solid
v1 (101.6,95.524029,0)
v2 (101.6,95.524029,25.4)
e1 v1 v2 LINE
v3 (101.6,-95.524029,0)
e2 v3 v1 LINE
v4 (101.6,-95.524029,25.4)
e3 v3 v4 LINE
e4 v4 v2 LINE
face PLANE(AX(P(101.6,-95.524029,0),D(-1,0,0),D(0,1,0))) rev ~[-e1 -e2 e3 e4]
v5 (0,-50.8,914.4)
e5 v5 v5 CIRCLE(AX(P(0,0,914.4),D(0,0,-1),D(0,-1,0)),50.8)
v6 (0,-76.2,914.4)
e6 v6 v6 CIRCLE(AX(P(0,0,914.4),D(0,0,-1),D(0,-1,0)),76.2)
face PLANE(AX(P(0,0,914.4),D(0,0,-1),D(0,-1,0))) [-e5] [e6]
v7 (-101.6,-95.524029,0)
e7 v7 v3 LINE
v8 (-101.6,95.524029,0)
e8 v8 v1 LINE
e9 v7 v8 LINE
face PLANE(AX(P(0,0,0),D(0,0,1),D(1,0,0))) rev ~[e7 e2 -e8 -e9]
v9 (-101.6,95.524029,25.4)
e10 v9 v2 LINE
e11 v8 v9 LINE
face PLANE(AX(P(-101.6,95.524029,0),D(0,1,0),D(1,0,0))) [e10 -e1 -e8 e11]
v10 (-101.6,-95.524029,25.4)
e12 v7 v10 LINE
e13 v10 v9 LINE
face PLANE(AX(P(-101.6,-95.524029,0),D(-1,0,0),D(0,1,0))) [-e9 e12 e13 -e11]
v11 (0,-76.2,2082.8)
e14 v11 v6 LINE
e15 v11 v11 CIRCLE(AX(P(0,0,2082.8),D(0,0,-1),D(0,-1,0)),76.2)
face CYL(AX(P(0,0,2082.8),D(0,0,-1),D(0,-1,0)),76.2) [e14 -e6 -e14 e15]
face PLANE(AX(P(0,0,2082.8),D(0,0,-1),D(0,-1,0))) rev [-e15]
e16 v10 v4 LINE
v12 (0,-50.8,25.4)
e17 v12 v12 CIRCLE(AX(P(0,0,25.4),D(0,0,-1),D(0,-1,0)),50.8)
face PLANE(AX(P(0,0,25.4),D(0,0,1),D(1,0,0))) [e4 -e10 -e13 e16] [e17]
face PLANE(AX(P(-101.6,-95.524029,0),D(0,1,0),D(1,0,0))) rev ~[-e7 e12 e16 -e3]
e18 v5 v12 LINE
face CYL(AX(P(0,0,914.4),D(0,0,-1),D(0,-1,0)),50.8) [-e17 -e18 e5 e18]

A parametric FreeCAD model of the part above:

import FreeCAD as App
import Part
import Sketcher

V = App.Vector
Q = App.Units.Quantity

doc = App.newDocument("Part")
params = doc.addObject("Spreadsheet::Sheet", "Params")
for row, (alias, value) in enumerate([
    ("sketch1_width", "2 in"),
    ("sketch1_width2", "3 in"),
    ("sketch1_height", "82 in"),
    ("sketch1_height2", "46 in"),
    ("revolution_angle", "360 deg"),
    ("sketch2_width", "8 in"),
    ("pad1_length", "1 in"),
], start=1):
    params.set(f"A{row}", alias)
    params.set(f"B{row}", "=" + value)
    params.setAlias(f"B{row}", alias)

body = doc.addObject("PartDesign::Body", "Body")

sketch1 = body.newObject("Sketcher::SketchObject", "Sketch")
sketch1.AttachmentSupport = (doc.getObject("YZ_Plane"), [""])
sketch1.MapMode = "FlatFace"
sketch1.addGeometry(Part.LineSegment(V(-50.8, 0, 0), V(0, 0, 0)), False)
sketch1.addGeometry(Part.LineSegment(V(0, 0, 0), V(0, 2082.8, 0)), False)
sketch1.addGeometry(Part.LineSegment(V(0, 2082.8, 0), V(-76.2, 2082.8, 0)), False)
sketch1.addGeometry(Part.LineSegment(V(-76.2, 2082.8, 0), V(-76.2, 914.4, 0)), False)
sketch1.addGeometry(Part.LineSegment(V(-76.2, 914.4, 0), V(-50.8, 914.4, 0)), False)
sketch1.addGeometry(Part.LineSegment(V(-50.8, 914.4, 0), V(-50.8, 0, 0)), False)
sketch1.addConstraint(Sketcher.Constraint("Coincident", 0, 2, 1, 1))
sketch1.addConstraint(Sketcher.Constraint("Coincident", 1, 2, 2, 1))
sketch1.addConstraint(Sketcher.Constraint("Coincident", 2, 2, 3, 1))
sketch1.addConstraint(Sketcher.Constraint("Coincident", 3, 2, 4, 1))
sketch1.addConstraint(Sketcher.Constraint("Coincident", 4, 2, 5, 1))
sketch1.addConstraint(Sketcher.Constraint("Coincident", 5, 2, 0, 1))
sketch1.addConstraint(Sketcher.Constraint("Horizontal", 0))
sketch1.addConstraint(Sketcher.Constraint("Vertical", 1))
sketch1.addConstraint(Sketcher.Constraint("Horizontal", 2))
sketch1.addConstraint(Sketcher.Constraint("Vertical", 3))
sketch1.addConstraint(Sketcher.Constraint("Horizontal", 4))
sketch1.addConstraint(Sketcher.Constraint("Vertical", 5))
sketch1.addConstraint(Sketcher.Constraint("Coincident", 0, 2, -1, 1))
sketch1.addConstraint(Sketcher.Constraint("DistanceX", 0, 1, 0, 2, Q("2 in")))
sketch1.addConstraint(Sketcher.Constraint("DistanceX", 2, 2, 2, 1, Q("3 in")))
sketch1.addConstraint(Sketcher.Constraint("DistanceY", 1, 1, 1, 2, Q("82 in")))
sketch1.addConstraint(Sketcher.Constraint("DistanceY", 3, 2, 3, 1, Q("46 in")))
sketch1.setExpression("Constraints[13]", "Params.sketch1_width")
sketch1.setExpression("Constraints[14]", "Params.sketch1_width2")
sketch1.setExpression("Constraints[15]", "Params.sketch1_height")
sketch1.setExpression("Constraints[16]", "Params.sketch1_height2")
revolution = body.newObject("PartDesign::Revolution", "Revolution")
revolution.Profile = sketch1
revolution.ReferenceAxis = (sketch1, ["V_Axis"])
revolution.setExpression("Angle", "Params.revolution_angle")

sketch2 = body.newObject("Sketcher::SketchObject", "Sketch001")
sketch2.AttachmentSupport = (doc.getObject("XY_Plane"), [""])
sketch2.MapMode = "FlatFace"
sketch2.addGeometry(Part.LineSegment(V(-101.6, 95.524029, 0), V(-101.6, -95.524029, 0)), False)
sketch2.addGeometry(Part.LineSegment(V(-101.6, -95.524029, 0), V(101.6, -95.524029, 0)), False)
sketch2.addGeometry(Part.LineSegment(V(101.6, -95.524029, 0), V(101.6, 95.524029, 0)), False)
sketch2.addGeometry(Part.LineSegment(V(101.6, 95.524029, 0), V(-101.6, 95.524029, 0)), False)
sketch2.addConstraint(Sketcher.Constraint("Coincident", 0, 2, 1, 1))
sketch2.addConstraint(Sketcher.Constraint("Coincident", 1, 2, 2, 1))
sketch2.addConstraint(Sketcher.Constraint("Coincident", 2, 2, 3, 1))
sketch2.addConstraint(Sketcher.Constraint("Coincident", 3, 2, 0, 1))
sketch2.addConstraint(Sketcher.Constraint("Vertical", 0))
sketch2.addConstraint(Sketcher.Constraint("Horizontal", 1))
sketch2.addConstraint(Sketcher.Constraint("Vertical", 2))
sketch2.addConstraint(Sketcher.Constraint("Horizontal", 3))
sketch2.addConstraint(Sketcher.Constraint("Symmetric", 0, 2, 2, 2, -1, 1))
sketch2.addConstraint(Sketcher.Constraint("DistanceX", 1, 1, 1, 2, Q("8 in")))
sketch2.addConstraint(Sketcher.Constraint("DistanceY", 0, 2, 0, 1, Q("191.048058 mm")))
sketch2.setExpression("Constraints[9]", "Params.sketch2_width")
pad1 = body.newObject("PartDesign::Pad", "Pad")
pad1.Profile = sketch2
pad1.setExpression("Length", "Params.pad1_length")

doc.recompute()
